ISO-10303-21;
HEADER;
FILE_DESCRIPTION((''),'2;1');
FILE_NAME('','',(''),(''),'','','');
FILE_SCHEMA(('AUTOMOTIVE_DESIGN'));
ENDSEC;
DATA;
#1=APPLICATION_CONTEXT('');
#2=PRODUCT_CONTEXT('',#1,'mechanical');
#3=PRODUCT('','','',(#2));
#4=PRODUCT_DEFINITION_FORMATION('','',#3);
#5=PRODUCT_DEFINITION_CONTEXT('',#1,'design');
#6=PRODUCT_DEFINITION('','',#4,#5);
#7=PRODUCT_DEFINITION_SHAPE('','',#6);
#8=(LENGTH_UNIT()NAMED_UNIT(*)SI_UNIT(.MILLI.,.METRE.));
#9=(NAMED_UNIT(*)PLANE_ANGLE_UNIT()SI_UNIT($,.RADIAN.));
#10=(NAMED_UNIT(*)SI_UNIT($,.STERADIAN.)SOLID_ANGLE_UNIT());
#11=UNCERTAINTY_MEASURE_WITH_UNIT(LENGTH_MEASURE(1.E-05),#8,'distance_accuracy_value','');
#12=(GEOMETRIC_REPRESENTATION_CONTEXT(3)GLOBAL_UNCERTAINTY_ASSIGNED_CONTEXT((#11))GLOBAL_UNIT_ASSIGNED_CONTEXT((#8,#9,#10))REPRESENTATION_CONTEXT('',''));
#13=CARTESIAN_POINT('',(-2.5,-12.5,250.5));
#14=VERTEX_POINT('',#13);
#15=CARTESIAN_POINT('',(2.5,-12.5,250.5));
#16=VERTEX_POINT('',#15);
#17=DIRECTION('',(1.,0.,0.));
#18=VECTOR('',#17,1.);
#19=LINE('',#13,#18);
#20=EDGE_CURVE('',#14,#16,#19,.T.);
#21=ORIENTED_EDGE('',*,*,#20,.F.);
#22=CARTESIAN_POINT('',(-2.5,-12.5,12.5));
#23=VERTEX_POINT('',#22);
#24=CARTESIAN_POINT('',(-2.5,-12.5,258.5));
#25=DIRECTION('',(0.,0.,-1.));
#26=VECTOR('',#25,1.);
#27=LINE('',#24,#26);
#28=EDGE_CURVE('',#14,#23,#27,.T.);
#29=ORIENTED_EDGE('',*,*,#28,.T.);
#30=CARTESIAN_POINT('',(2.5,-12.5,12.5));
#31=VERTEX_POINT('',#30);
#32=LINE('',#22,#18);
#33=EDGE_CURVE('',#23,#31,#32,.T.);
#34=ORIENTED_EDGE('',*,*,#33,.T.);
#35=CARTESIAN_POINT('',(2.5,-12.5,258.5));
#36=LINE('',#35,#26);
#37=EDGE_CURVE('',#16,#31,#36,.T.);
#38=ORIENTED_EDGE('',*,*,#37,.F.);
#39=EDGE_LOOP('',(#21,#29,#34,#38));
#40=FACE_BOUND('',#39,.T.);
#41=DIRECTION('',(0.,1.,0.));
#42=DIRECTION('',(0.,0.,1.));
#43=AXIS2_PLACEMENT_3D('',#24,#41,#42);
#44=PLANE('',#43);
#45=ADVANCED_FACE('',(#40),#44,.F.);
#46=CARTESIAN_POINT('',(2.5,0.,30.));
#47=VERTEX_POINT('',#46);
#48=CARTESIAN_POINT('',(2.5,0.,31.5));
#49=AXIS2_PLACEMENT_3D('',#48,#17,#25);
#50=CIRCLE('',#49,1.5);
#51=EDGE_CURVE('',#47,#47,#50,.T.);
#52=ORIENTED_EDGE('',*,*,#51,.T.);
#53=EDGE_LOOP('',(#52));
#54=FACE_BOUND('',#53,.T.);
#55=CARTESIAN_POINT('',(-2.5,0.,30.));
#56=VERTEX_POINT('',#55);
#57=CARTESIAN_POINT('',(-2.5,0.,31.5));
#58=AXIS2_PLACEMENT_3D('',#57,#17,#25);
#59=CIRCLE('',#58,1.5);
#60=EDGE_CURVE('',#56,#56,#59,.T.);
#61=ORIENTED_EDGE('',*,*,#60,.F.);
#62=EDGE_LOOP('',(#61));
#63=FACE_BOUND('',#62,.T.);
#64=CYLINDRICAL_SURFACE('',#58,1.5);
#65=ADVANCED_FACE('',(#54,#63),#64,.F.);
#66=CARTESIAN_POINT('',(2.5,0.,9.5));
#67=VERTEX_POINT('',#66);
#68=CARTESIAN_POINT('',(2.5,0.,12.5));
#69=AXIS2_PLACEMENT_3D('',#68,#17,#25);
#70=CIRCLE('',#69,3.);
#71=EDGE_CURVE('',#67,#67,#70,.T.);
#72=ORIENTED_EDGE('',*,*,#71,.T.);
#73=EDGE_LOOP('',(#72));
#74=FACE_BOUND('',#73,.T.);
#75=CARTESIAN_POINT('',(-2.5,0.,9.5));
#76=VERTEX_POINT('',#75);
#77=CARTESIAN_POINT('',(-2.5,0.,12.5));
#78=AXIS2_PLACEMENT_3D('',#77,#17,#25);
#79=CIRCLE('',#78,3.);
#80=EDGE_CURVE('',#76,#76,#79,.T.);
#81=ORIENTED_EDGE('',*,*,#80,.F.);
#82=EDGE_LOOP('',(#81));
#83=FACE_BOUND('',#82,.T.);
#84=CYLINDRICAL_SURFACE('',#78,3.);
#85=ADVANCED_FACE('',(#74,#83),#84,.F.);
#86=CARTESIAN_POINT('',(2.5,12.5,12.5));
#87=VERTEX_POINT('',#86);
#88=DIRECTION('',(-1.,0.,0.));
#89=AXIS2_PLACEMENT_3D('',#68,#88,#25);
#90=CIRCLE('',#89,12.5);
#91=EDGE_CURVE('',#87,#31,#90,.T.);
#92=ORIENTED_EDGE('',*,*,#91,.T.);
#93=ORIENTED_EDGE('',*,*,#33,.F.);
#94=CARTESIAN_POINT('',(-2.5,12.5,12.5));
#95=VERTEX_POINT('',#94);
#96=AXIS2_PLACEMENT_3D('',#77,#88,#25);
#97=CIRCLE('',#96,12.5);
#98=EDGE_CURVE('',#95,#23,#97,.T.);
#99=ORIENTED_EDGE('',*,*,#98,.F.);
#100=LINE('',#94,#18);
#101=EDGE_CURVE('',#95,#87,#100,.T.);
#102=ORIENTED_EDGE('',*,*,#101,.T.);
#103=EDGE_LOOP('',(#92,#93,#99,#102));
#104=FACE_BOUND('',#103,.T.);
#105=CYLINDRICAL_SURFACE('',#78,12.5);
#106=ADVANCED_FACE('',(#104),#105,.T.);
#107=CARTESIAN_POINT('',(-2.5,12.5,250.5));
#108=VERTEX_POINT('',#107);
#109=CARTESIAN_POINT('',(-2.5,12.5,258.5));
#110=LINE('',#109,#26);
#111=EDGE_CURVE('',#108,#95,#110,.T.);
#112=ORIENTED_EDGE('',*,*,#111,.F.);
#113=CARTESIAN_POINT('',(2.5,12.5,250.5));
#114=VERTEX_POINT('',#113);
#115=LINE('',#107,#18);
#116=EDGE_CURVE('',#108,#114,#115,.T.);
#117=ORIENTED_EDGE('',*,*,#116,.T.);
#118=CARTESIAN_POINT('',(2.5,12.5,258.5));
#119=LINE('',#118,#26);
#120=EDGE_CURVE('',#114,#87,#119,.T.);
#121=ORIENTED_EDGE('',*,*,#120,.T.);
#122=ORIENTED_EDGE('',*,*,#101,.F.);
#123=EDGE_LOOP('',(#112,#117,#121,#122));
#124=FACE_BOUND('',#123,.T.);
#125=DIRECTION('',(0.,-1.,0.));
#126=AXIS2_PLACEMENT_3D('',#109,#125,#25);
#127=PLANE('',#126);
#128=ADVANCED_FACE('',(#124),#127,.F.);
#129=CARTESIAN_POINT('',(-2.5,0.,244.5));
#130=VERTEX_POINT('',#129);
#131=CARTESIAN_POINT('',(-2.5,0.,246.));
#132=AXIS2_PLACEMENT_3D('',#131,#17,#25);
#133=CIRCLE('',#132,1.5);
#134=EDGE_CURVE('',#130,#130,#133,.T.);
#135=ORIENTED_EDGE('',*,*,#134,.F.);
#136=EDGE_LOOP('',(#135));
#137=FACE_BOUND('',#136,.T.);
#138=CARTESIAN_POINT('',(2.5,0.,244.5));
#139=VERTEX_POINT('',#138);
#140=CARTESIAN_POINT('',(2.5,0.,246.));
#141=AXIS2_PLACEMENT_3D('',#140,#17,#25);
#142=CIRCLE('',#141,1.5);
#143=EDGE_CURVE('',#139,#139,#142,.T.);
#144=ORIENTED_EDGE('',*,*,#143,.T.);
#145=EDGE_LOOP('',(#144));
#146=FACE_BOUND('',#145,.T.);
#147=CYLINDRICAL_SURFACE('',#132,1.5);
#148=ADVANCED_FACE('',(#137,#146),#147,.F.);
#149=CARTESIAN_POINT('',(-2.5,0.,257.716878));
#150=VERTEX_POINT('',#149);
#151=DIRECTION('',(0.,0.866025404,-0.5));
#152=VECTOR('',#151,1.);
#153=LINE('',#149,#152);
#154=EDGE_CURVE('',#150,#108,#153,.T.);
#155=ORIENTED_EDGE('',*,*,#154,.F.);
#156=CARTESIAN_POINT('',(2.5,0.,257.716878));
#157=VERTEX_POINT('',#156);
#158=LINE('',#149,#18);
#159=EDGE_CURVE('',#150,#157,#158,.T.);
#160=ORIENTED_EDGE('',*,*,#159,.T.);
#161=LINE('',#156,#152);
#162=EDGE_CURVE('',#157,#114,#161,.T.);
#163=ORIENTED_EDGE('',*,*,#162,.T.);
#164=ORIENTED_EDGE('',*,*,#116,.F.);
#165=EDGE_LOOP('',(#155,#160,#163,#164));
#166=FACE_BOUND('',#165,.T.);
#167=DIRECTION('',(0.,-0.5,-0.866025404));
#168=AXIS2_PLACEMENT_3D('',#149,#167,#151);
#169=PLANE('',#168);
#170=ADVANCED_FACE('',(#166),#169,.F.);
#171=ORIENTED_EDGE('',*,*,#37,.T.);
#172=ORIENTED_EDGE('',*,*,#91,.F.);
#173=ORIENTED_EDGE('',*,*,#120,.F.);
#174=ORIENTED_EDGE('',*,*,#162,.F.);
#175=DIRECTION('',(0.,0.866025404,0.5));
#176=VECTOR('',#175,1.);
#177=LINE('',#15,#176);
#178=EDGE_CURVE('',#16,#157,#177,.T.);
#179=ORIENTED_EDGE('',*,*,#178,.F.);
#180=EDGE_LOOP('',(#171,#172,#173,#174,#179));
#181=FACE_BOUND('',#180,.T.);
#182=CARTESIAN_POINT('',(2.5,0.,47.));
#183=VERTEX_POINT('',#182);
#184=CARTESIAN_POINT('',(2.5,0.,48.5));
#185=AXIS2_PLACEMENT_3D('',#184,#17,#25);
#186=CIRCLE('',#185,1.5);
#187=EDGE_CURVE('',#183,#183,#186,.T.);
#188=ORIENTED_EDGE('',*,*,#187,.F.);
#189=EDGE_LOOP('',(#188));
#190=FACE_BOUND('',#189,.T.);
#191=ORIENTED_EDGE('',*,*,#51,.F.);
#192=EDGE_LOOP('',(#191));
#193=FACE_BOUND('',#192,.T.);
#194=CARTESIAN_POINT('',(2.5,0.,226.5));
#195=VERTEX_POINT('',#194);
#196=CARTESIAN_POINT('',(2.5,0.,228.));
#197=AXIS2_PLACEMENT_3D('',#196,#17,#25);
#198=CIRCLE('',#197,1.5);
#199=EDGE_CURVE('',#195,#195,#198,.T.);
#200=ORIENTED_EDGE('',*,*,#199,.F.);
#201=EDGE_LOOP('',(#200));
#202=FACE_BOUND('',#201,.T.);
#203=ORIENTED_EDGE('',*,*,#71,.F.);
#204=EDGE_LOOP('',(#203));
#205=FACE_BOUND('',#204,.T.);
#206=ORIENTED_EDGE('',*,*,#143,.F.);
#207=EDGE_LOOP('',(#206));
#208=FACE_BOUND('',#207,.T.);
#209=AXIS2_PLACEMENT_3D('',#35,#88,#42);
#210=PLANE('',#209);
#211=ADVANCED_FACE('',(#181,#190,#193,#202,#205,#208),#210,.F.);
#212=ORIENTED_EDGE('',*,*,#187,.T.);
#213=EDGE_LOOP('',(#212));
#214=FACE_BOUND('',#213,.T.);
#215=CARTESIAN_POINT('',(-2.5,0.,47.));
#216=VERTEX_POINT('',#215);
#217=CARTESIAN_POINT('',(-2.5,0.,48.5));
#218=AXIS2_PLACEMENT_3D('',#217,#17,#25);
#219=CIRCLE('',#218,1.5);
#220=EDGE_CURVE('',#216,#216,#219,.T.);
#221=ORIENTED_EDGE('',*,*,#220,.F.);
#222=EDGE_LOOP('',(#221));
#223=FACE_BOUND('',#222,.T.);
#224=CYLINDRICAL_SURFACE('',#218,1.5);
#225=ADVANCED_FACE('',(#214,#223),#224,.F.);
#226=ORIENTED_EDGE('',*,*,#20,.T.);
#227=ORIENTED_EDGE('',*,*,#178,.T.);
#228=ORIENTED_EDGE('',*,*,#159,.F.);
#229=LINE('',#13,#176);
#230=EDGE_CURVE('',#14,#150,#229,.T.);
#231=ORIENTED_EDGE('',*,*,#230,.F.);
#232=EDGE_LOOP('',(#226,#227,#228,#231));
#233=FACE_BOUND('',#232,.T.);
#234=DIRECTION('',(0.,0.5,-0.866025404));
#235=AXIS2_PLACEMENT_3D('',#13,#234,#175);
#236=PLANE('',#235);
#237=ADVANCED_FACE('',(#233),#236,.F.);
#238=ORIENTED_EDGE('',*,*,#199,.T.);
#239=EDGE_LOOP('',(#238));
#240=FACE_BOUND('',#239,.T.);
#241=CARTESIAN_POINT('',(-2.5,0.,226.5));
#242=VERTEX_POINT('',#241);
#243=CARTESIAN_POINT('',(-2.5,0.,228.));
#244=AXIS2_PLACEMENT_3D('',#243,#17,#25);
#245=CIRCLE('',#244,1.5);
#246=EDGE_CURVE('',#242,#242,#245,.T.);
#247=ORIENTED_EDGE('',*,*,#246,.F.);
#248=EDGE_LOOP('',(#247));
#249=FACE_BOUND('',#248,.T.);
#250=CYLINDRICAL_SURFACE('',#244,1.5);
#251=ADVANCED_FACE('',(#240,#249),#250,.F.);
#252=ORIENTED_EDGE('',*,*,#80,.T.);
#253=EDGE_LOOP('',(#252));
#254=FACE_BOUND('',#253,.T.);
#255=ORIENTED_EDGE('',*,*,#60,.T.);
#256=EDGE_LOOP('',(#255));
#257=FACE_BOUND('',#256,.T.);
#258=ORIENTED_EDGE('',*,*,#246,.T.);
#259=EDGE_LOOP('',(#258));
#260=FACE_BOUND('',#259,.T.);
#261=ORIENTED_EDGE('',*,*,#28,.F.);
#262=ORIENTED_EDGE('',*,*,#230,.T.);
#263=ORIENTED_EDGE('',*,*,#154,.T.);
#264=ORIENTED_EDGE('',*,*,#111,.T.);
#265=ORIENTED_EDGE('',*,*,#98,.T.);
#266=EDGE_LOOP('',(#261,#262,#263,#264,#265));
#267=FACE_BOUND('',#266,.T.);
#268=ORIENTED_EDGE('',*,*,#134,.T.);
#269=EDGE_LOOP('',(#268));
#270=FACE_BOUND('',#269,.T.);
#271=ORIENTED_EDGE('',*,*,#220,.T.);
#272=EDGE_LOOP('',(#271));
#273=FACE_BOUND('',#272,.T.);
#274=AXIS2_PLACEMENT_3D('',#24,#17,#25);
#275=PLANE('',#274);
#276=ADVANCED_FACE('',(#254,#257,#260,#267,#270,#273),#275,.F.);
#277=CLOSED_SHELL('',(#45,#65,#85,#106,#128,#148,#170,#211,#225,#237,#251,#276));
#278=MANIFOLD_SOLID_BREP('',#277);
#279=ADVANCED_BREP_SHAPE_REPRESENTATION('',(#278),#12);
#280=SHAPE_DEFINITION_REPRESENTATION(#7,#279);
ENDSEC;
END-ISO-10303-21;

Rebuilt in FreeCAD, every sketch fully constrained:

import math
import FreeCAD as App
import Part
import Sketcher
from FreeCAD import Vector
Q = App.Units.Quantity


def add_polygon(sketch, points):
    """Adds a closed chain of lines whose ends are joined by coincident constraints."""
    first, n = sketch.GeometryCount, len(points)
    for a, b in zip(points, points[1:] + points[:1]):
        sketch.addGeometry(Part.LineSegment(App.Vector(*a, 0), App.Vector(*b, 0)), False)
    for i in range(n):
        sketch.addConstraint(Sketcher.Constraint("Coincident", first + i, 2, first + (i + 1) % n, 1))

doc = App.newDocument("Part")
params = doc.addObject("Spreadsheet::Sheet", "Params")
for row, (alias, value) in enumerate([
    ("sketch1_width", "5 mm"),
    ("sketch1_height", "25 mm"),
    ("pad1_length", "258.5 mm"),
    ("sketch2_diameter", "6 mm"),
    ("sketch2_diameter2", "3 mm"),
    ("sketch2_radius", "12.5 mm"),
    ("sketch2_height", "18 mm"),
    ("sketch2_height2", "8 mm"),
], start=1):
    params.set(f"A{row}", alias)
    params.set(f"B{row}", "=" + value)
    params.setAlias(f"B{row}", alias)

body = doc.addObject("PartDesign::Body", "Body")

# Sketch on XY plane
sketch1 = body.newObject("Sketcher::SketchObject", "Sketch")
sketch1.AttachmentSupport = (doc.getObject("XY_Plane"), [""])
sketch1.MapMode = "FlatFace"
add_polygon(sketch1, [(-2, 12), (-2, -12), (2, -12), (2, 12)])  # lines 0-3
sketch1.addConstraint([
    Sketcher.Constraint("Vertical", 0),
    Sketcher.Constraint("Horizontal", 1),
    Sketcher.Constraint("Vertical", 2),
    Sketcher.Constraint("Horizontal", 3),
    Sketcher.Constraint("Symmetric", 0, 2, 2, 2, -1, 1),
    Sketcher.Constraint("DistanceX", 1, 1, 1, 2, Q("5 mm")),
    Sketcher.Constraint("DistanceY", 0, 2, 0, 1, Q("25 mm")),
])
sketch1.setExpression("Constraints[9]", "Params.sketch1_width")
sketch1.setExpression("Constraints[10]", "Params.sketch1_height")
pad1 = body.newObject("PartDesign::Pad", "Pad")
pad1.Profile = sketch1
pad1.setExpression("Length", "Params.pad1_length")

# Sketch on YZ plane
sketch2 = body.newObject("Sketcher::SketchObject", "Sketch001")
sketch2.AttachmentSupport = (doc.getObject("YZ_Plane"), [""])
sketch2.MapMode = "FlatFace"
sketch2.AttachmentOffset = App.Placement(Vector(0, 0, 2.5), App.Rotation())
sketch2.addGeometry(Part.Circle(Vector(0, 12.5, 0), Vector(0, 0, 1), 3), False)  # 0
sketch2.addGeometry(Part.Circle(Vector(0, 246, 0), Vector(0, 0, 1), 1.5), False)  # 1
sketch2.addGeometry(Part.Circle(Vector(0, 228, 0), Vector(0, 0, 1), 1.5), False)  # 2
sketch2.addGeometry(Part.Circle(Vector(0, 48.5, 0), Vector(0, 0, 1), 1.5), False)  # 3
sketch2.addGeometry(Part.Circle(Vector(0, 31.5, 0), Vector(0, 0, 1), 1.5), False)  # 4
sketch2.addGeometry(Part.LineSegment(Vector(12.5, -5.5, 0), Vector(12.5, 12.5, 0)), False)  # 5
sketch2.addGeometry(Part.ArcOfCircle(Part.Circle(Vector(0, 12.5, 0), Vector(0, 0, 1), 12.5), math.radians(180), math.radians(360)), False)  # 6
sketch2.addGeometry(Part.LineSegment(Vector(-12.5, 12.5, 0), Vector(-12.5, -5.5, 0)), False)  # 7
sketch2.addGeometry(Part.LineSegment(Vector(-12.5, -5.5, 0), Vector(12.5, -5.5, 0)), False)  # 8
add_polygon(sketch2, [(0, 257.7), (12.5, 250.5), (12.5, 258.5), (-12.5, 258.5), (-12.5, 250.5)])  # lines 9-13
sketch2.addConstraint([
    Sketcher.Constraint("Tangent", 5, 2, 6, 2),
    Sketcher.Constraint("Tangent", 6, 1, 7, 1),
    Sketcher.Constraint("Coincident", 7, 2, 8, 1),
    Sketcher.Constraint("Coincident", 8, 2, 5, 1),
    Sketcher.Constraint("Vertical", 5),
    Sketcher.Constraint("Vertical", 7),
    Sketcher.Constraint("Horizontal", 8),
    Sketcher.Constraint("Vertical", 10),
    Sketcher.Constraint("Horizontal", 11),
    Sketcher.Constraint("Vertical", 12),
    Sketcher.Constraint("Coincident", 6, 3, 0, 3),
    Sketcher.Constraint("Equal", 1, 2),
    Sketcher.Constraint("Equal", 2, 3),
    Sketcher.Constraint("Equal", 3, 4),
    Sketcher.Constraint("Symmetric", 9, 2, 12, 2, -2),
    Sketcher.Constraint("PointOnObject", 0, 3, -2),
    Sketcher.Constraint("PointOnObject", 1, 3, -2),
    Sketcher.Constraint("PointOnObject", 2, 3, -2),
    Sketcher.Constraint("PointOnObject", 3, 3, -2),
    Sketcher.Constraint("PointOnObject", 4, 3, -2),
    Sketcher.Constraint("PointOnObject", 13, 2, -2),
    Sketcher.Constraint("Vertical", 8, 2, 9, 2),
    Sketcher.Constraint("Diameter", 0, Q("6 mm")),
    Sketcher.Constraint("Diameter", 1, Q("3 mm")),
    Sketcher.Constraint("Radius", 6, Q("12.5 mm")),
    Sketcher.Constraint("DistanceY", 5, 1, 5, 2, Q("18 mm")),
    Sketcher.Constraint("DistanceY", 10, 1, 10, 2, Q("8 mm")),
    Sketcher.Constraint("Angle", 9, Q("-30 deg")),
    Sketcher.Constraint("DistanceY", -1, 1, 1, 3, Q("246 mm")),
    Sketcher.Constraint("DistanceY", -1, 1, 2, 3, Q("228 mm")),
    Sketcher.Constraint("DistanceY", 0, 3, 3, 3, Q("36 mm")),
    Sketcher.Constraint("DistanceY", 4, 3, 3, 3, Q("17 mm")),
    Sketcher.Constraint("DistanceY", 3, 3, 9, 2, Q("202 mm")),
    Sketcher.Constraint("DistanceY", -1, 1, 0, 3, Q("12.5 mm")),
])
sketch2.setExpression("Constraints[27]", "Params.sketch2_diameter")
sketch2.setExpression("Constraints[28]", "Params.sketch2_diameter2")
sketch2.setExpression("Constraints[29]", "Params.sketch2_radius")
sketch2.setExpression("Constraints[30]", "Params.sketch2_height")
sketch2.setExpression("Constraints[31]", "Params.sketch2_height2")
pocket1 = body.newObject("PartDesign::Pocket", "Pocket")
pocket1.Profile = sketch2
pocket1.Type = "ThroughAll"

doc.recompute()
